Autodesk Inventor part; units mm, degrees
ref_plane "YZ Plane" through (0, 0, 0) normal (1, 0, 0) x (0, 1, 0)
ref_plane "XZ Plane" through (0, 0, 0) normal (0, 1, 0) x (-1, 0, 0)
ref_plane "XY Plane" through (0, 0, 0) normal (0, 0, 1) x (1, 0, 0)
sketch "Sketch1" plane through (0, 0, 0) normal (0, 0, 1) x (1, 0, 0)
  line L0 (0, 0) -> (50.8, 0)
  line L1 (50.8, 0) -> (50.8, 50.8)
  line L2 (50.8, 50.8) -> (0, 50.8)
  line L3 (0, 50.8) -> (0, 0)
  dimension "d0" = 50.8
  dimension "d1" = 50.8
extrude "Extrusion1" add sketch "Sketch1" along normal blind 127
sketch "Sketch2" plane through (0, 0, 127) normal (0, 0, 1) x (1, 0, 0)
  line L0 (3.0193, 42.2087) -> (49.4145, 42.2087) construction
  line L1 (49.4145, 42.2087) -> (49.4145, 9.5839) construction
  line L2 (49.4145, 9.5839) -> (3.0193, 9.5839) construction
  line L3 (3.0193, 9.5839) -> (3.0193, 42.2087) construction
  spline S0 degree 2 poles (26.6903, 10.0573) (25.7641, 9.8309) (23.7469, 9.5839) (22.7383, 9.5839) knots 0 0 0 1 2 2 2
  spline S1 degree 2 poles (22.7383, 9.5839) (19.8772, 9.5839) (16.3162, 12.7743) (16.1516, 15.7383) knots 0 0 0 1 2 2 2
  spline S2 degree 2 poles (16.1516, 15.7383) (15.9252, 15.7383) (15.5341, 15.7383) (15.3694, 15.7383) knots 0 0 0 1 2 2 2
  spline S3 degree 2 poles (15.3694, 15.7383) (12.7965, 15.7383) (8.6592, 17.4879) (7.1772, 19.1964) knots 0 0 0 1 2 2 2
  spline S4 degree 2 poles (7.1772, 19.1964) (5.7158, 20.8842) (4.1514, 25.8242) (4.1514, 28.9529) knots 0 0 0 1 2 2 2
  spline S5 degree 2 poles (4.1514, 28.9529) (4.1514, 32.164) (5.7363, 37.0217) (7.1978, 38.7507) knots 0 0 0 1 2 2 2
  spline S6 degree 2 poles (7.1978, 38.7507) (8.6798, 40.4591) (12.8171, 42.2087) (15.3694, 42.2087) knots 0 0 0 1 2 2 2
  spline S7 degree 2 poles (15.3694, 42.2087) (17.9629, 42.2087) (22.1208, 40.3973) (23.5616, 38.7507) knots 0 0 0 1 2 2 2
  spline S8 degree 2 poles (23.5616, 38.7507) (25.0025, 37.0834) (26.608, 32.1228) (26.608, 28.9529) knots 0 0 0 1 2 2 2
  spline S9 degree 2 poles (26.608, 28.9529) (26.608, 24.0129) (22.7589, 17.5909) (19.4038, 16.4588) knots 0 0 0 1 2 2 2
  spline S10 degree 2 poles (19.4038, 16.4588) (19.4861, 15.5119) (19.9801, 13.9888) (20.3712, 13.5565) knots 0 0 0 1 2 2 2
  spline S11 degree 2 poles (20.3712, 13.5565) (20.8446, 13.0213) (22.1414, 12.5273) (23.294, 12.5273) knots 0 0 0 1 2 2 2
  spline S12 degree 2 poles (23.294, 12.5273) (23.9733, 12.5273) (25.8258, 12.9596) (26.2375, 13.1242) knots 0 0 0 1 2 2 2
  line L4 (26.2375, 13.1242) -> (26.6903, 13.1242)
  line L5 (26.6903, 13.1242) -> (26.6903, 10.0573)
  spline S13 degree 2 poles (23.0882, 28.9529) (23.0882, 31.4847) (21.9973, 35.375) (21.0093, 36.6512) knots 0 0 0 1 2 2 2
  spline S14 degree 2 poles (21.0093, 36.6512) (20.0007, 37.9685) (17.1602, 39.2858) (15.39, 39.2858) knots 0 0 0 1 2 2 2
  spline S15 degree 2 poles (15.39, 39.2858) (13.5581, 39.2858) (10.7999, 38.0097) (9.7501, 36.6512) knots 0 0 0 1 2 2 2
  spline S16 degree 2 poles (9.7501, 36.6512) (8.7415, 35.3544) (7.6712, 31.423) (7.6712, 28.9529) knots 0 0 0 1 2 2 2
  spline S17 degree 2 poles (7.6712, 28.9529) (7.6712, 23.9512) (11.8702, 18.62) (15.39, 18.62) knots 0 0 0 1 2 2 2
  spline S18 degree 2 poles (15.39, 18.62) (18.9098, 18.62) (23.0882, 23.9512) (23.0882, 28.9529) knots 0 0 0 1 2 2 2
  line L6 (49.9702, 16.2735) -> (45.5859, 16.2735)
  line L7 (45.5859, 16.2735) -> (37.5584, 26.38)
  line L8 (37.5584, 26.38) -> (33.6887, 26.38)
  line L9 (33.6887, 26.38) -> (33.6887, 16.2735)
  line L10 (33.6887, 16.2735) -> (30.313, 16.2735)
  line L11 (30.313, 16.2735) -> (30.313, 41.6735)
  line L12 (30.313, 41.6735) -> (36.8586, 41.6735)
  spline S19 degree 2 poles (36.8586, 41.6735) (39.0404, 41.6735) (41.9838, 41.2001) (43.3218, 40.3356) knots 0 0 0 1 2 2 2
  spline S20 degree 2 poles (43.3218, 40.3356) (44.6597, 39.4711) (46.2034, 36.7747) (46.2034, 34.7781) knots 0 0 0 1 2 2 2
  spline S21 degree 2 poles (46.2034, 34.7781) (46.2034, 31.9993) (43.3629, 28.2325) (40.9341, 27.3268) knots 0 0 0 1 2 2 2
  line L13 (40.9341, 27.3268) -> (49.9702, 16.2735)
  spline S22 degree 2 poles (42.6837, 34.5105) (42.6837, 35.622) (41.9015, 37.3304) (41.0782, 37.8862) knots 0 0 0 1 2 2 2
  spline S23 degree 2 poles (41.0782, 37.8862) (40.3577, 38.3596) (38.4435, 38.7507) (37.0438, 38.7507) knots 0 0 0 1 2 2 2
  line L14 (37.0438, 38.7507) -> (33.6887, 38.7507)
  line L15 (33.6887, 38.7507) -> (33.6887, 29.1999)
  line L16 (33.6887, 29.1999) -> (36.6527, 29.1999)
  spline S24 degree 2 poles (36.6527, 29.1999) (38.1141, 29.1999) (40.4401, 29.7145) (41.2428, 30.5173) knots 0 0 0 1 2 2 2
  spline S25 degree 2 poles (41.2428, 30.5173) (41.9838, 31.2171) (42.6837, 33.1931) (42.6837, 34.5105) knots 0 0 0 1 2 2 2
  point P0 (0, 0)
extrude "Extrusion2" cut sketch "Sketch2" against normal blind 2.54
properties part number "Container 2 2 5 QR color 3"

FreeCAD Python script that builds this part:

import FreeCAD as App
import Part
import Sketcher
from FreeCAD import Vector
Q = App.Units.Quantity


def add_polygon(sketch, points):
    """Adds a closed chain of lines whose ends are joined by coincident constraints."""
    first, n = sketch.GeometryCount, len(points)
    for a, b in zip(points, points[1:] + points[:1]):
        sketch.addGeometry(Part.LineSegment(App.Vector(*a, 0), App.Vector(*b, 0)), False)
    for i in range(n):
        sketch.addConstraint(Sketcher.Constraint("Coincident", first + i, 2, first + (i + 1) % n, 1))

doc = App.newDocument("Part")
body = doc.addObject("PartDesign::Body", "Body")

# Sketch on XY plane
sketch1 = body.newObject("Sketcher::SketchObject", "Sketch")
sketch1.AttachmentSupport = (doc.getObject("XY_Plane"), [""])
sketch1.MapMode = "FlatFace"
add_polygon(sketch1, [(0, 51), (0, 0), (51, 0), (51, 51)])  # lines 0-3
sketch1.addConstraint([
    Sketcher.Constraint("Vertical", 0),
    Sketcher.Constraint("Horizontal", 1),
    Sketcher.Constraint("Vertical", 2),
    Sketcher.Constraint("Horizontal", 3),
    Sketcher.Constraint("Coincident", 0, 2, -1, 1),
    Sketcher.Constraint("Equal", 3, 0),
    Sketcher.Constraint("DistanceX", 1, 1, 1, 2, Q("2 in")),
])
pad1 = body.newObject("PartDesign::Pad", "Pad")
pad1.Profile = sketch1
pad1.Length = Q("5 in")

# Sketch on XY plane
sketch2 = body.newObject("Sketcher::SketchObject", "Sketch001")
sketch2.AttachmentSupport = (doc.getObject("XY_Plane"), [""])
sketch2.MapMode = "FlatFace"
sketch2.AttachmentOffset = App.Placement(Vector(0, 0, 5 * 25.4), App.Rotation())
sketch2.addGeometry([
    Part.BSplineCurve([Vector(26.6903, 10.0573, 0), Vector(25.7641, 9.8309, 0), Vector(23.7469, 9.5839, 0), Vector(22.7383, 9.5839, 0)], [3, 1, 3], [0, 1, 2], False, 2, [1, 1, 1, 1], False),  # 0
    Part.LineSegment(Vector(26.6903, 10.0573, 0), Vector(26.6903, 13.1242, 0)),  # 1
    Part.LineSegment(Vector(26.6903, 13.1242, 0), Vector(26.2375, 13.1242, 0)),  # 2
    Part.BSplineCurve([Vector(23.294, 12.5273, 0), Vector(23.9733, 12.5273, 0), Vector(25.8258, 12.9596, 0), Vector(26.2375, 13.1242, 0)], [3, 1, 3], [0, 1, 2], False, 2, [1, 1, 1, 1], False),  # 3
    Part.BSplineCurve([Vector(20.3712, 13.5565, 0), Vector(20.8446, 13.0213, 0), Vector(22.1414, 12.5273, 0), Vector(23.294, 12.5273, 0)], [3, 1, 3], [0, 1, 2], False, 2, [1, 1, 1, 1], False),  # 4
    Part.BSplineCurve([Vector(19.4038, 16.4588, 0), Vector(19.4861, 15.5119, 0), Vector(19.9801, 13.9888, 0), Vector(20.3712, 13.5565, 0)], [3, 1, 3], [0, 1, 2], False, 2, [1, 1, 1, 1], False),  # 5
    Part.BSplineCurve([Vector(26.608, 28.9529, 0), Vector(26.608, 24.0129, 0), Vector(22.7589, 17.5909, 0), Vector(19.4038, 16.4588, 0)], [3, 1, 3], [0, 1, 2], False, 2, [1, 1, 1, 1], False),  # 6
    Part.BSplineCurve([Vector(23.5616, 38.7507, 0), Vector(25.0025, 37.0834, 0), Vector(26.608, 32.1228, 0), Vector(26.608, 28.9529, 0)], [3, 1, 3], [0, 1, 2], False, 2, [1, 1, 1, 1], False),  # 7
    Part.BSplineCurve([Vector(15.3694, 42.2087, 0), Vector(17.9629, 42.2087, 0), Vector(22.1208, 40.3973, 0), Vector(23.5616, 38.7507, 0)], [3, 1, 3], [0, 1, 2], False, 2, [1, 1, 1, 1], False),  # 8
    Part.BSplineCurve([Vector(7.1978, 38.7507, 0), Vector(8.6798, 40.4591, 0), Vector(12.8171, 42.2087, 0), Vector(15.3694, 42.2087, 0)], [3, 1, 3], [0, 1, 2], False, 2, [1, 1, 1, 1], False),  # 9
    Part.BSplineCurve([Vector(4.1514, 28.9529, 0), Vector(4.1514, 32.164, 0), Vector(5.7363, 37.0217, 0), Vector(7.1978, 38.7507, 0)], [3, 1, 3], [0, 1, 2], False, 2, [1, 1, 1, 1], False),  # 10
    Part.BSplineCurve([Vector(7.1772, 19.1964, 0), Vector(5.7158, 20.8842, 0), Vector(4.1514, 25.8242, 0), Vector(4.1514, 28.9529, 0)], [3, 1, 3], [0, 1, 2], False, 2, [1, 1, 1, 1], False),  # 11
    Part.BSplineCurve([Vector(15.3694, 15.7383, 0), Vector(12.7965, 15.7383, 0), Vector(8.6592, 17.4879, 0), Vector(7.1772, 19.1964, 0)], [3, 1, 3], [0, 1, 2], False, 2, [1, 1, 1, 1], False),  # 12
    Part.BSplineCurve([Vector(16.1516, 15.7383, 0), Vector(15.9252, 15.7383, 0), Vector(15.5341, 15.7383, 0), Vector(15.3694, 15.7383, 0)], [3, 1, 3], [0, 1, 2], False, 2, [1, 1, 1, 1], False),  # 13
    Part.BSplineCurve([Vector(22.7383, 9.5839, 0), Vector(19.8772, 9.5839, 0), Vector(16.3162, 12.7743, 0), Vector(16.1516, 15.7383, 0)], [3, 1, 3], [0, 1, 2], False, 2, [1, 1, 1, 1], False),  # 14
    Part.BSplineCurve([Vector(23.0882, 28.9529, 0), Vector(23.0882, 31.4847, 0), Vector(21.9973, 35.375, 0), Vector(21.0093, 36.6512, 0)], [3, 1, 3], [0, 1, 2], False, 2, [1, 1, 1, 1], False),  # 15
    Part.BSplineCurve([Vector(15.39, 18.62, 0), Vector(18.9098, 18.62, 0), Vector(23.0882, 23.9512, 0), Vector(23.0882, 28.9529, 0)], [3, 1, 3], [0, 1, 2], False, 2, [1, 1, 1, 1], False),  # 16
    Part.BSplineCurve([Vector(7.6712, 28.9529, 0), Vector(7.6712, 23.9512, 0), Vector(11.8702, 18.62, 0), Vector(15.39, 18.62, 0)], [3, 1, 3], [0, 1, 2], False, 2, [1, 1, 1, 1], False),  # 17
    Part.BSplineCurve([Vector(9.7501, 36.6512, 0), Vector(8.7415, 35.3544, 0), Vector(7.6712, 31.423, 0), Vector(7.6712, 28.9529, 0)], [3, 1, 3], [0, 1, 2], False, 2, [1, 1, 1, 1], False),  # 18
    Part.BSplineCurve([Vector(15.39, 39.2858, 0), Vector(13.5581, 39.2858, 0), Vector(10.7999, 38.0097, 0), Vector(9.7501, 36.6512, 0)], [3, 1, 3], [0, 1, 2], False, 2, [1, 1, 1, 1], False),  # 19
    Part.BSplineCurve([Vector(21.0093, 36.6512, 0), Vector(20.0007, 37.9685, 0), Vector(17.1602, 39.2858, 0), Vector(15.39, 39.2858, 0)], [3, 1, 3], [0, 1, 2], False, 2, [1, 1, 1, 1], False),  # 20
    Part.LineSegment(Vector(45.5859, 16.2735, 0), Vector(49.9702, 16.2735, 0)),  # 21
    Part.LineSegment(Vector(49.9702, 16.2735, 0), Vector(40.9341, 27.3268, 0)),  # 22
    Part.BSplineCurve([Vector(46.2034, 34.7781, 0), Vector(46.2034, 31.9993, 0), Vector(43.3629, 28.2325, 0), Vector(40.9341, 27.3268, 0)], [3, 1, 3], [0, 1, 2], False, 2, [1, 1, 1, 1], False),  # 23
    Part.BSplineCurve([Vector(43.3218, 40.3356, 0), Vector(44.6597, 39.4711, 0), Vector(46.2034, 36.7747, 0), Vector(46.2034, 34.7781, 0)], [3, 1, 3], [0, 1, 2], False, 2, [1, 1, 1, 1], False),  # 24
    Part.BSplineCurve([Vector(36.8586, 41.6735, 0), Vector(39.0404, 41.6735, 0), Vector(41.9838, 41.2001, 0), Vector(43.3218, 40.3356, 0)], [3, 1, 3], [0, 1, 2], False, 2, [1, 1, 1, 1], False),  # 25
    Part.LineSegment(Vector(36.8586, 41.6735, 0), Vector(30.313, 41.6735, 0)),  # 26
    Part.LineSegment(Vector(30.313, 41.6735, 0), Vector(30.313, 16.2735, 0)),  # 27
    Part.LineSegment(Vector(30.313, 16.2735, 0), Vector(33.6887, 16.2735, 0)),  # 28
    Part.LineSegment(Vector(33.6887, 16.2735, 0), Vector(33.6887, 26.38, 0)),  # 29
    Part.LineSegment(Vector(33.6887, 26.38, 0), Vector(37.5584, 26.38, 0)),  # 30
    Part.LineSegment(Vector(37.5584, 26.38, 0), Vector(45.5859, 16.2735, 0)),  # 31
    Part.BSplineCurve([Vector(42.6837, 34.5105, 0), Vector(42.6837, 35.622, 0), Vector(41.9015, 37.3304, 0), Vector(41.0782, 37.8862, 0)], [3, 1, 3], [0, 1, 2], False, 2, [1, 1, 1, 1], False),  # 32
    Part.BSplineCurve([Vector(41.2428, 30.5173, 0), Vector(41.9838, 31.2171, 0), Vector(42.6837, 33.1931, 0), Vector(42.6837, 34.5105, 0)], [3, 1, 3], [0, 1, 2], False, 2, [1, 1, 1, 1], False),  # 33
    Part.BSplineCurve([Vector(36.6527, 29.1999, 0), Vector(38.1141, 29.1999, 0), Vector(40.4401, 29.7145, 0), Vector(41.2428, 30.5173, 0)], [3, 1, 3], [0, 1, 2], False, 2, [1, 1, 1, 1], False),  # 34
    Part.LineSegment(Vector(36.6527, 29.1999, 0), Vector(33.6887, 29.1999, 0)),  # 35
    Part.LineSegment(Vector(33.6887, 29.1999, 0), Vector(33.6887, 38.7507, 0)),  # 36
    Part.LineSegment(Vector(33.6887, 38.7507, 0), Vector(37.0438, 38.7507, 0)),  # 37
    Part.BSplineCurve([Vector(41.0782, 37.8862, 0), Vector(40.3577, 38.3596, 0), Vector(38.4435, 38.7507, 0), Vector(37.0438, 38.7507, 0)], [3, 1, 3], [0, 1, 2], False, 2, [1, 1, 1, 1], False),  # 38
], False)
sketch2.addConstraint([
    Sketcher.Constraint("Block", 0),
    Sketcher.Constraint("Block", 3),
    Sketcher.Constraint("Block", 4),
    Sketcher.Constraint("Block", 5),
    Sketcher.Constraint("Block", 6),
    Sketcher.Constraint("Block", 7),
    Sketcher.Constraint("Block", 8),
    Sketcher.Constraint("Block", 9),
    Sketcher.Constraint("Block", 10),
    Sketcher.Constraint("Block", 11),
    Sketcher.Constraint("Block", 12),
    Sketcher.Constraint("Block", 13),
    Sketcher.Constraint("Block", 14),
    Sketcher.Constraint("Block", 15),
    Sketcher.Constraint("Block", 16),
    Sketcher.Constraint("Block", 17),
    Sketcher.Constraint("Block", 18),
    Sketcher.Constraint("Block", 19),
    Sketcher.Constraint("Block", 20),
    Sketcher.Constraint("Block", 23),
    Sketcher.Constraint("Block", 24),
    Sketcher.Constraint("Block", 25),
    Sketcher.Constraint("Block", 32),
    Sketcher.Constraint("Block", 33),
    Sketcher.Constraint("Block", 34),
    Sketcher.Constraint("Block", 38),
    Sketcher.Constraint("Coincident", 0, 1, 1, 1),
    Sketcher.Constraint("Coincident", 1, 2, 2, 1),
    Sketcher.Constraint("Coincident", 2, 2, 3, 2),
    Sketcher.Constraint("Coincident", 21, 2, 22, 1),
    Sketcher.Constraint("Coincident", 22, 2, 23, 2),
    Sketcher.Constraint("Coincident", 25, 1, 26, 1),
    Sketcher.Constraint("Coincident", 26, 2, 27, 1),
    Sketcher.Constraint("Coincident", 27, 2, 28, 1),
    Sketcher.Constraint("Coincident", 28, 2, 29, 1),
    Sketcher.Constraint("Coincident", 29, 2, 30, 1),
    Sketcher.Constraint("Coincident", 30, 2, 31, 1),
    Sketcher.Constraint("Coincident", 31, 2, 21, 1),
    Sketcher.Constraint("Coincident", 34, 1, 35, 1),
    Sketcher.Constraint("Coincident", 35, 2, 36, 1),
    Sketcher.Constraint("Coincident", 36, 2, 37, 1),
    Sketcher.Constraint("Coincident", 37, 2, 38, 2),
    Sketcher.Constraint("Vertical", 1),
    Sketcher.Constraint("Horizontal", 2),
    Sketcher.Constraint("Horizontal", 21),
    Sketcher.Constraint("Horizontal", 26),
    Sketcher.Constraint("Vertical", 27),
    Sketcher.Constraint("Horizontal", 28),
    Sketcher.Constraint("Vertical", 29),
    Sketcher.Constraint("Horizontal", 30),
    Sketcher.Constraint("Horizontal", 35),
    Sketcher.Constraint("Vertical", 36),
    Sketcher.Constraint("Horizontal", 37),
    Sketcher.Constraint("Horizontal", 21, 2, 27, 2),
    Sketcher.Constraint("Vertical", 29, 2, 35, 2),
    Sketcher.Constraint("DistanceY", 27, 2, 27, 1, Q("1 in")),
    Sketcher.Constraint("Angle", 31, Q("-51.5402 deg")),
    Sketcher.Constraint("DistanceX", 21, 1, 21, 2, Q("0.1726 in")),
    Sketcher.Constraint("DistanceX", 26, 2, 26, 1, Q("0.2577 in")),
    Sketcher.Constraint("DistanceX", 28, 1, 28, 2, Q("0.1329 in")),
    Sketcher.Constraint("DistanceY", 29, 1, 29, 2, Q("0.3979 in")),
    Sketcher.Constraint("DistanceX", 28, 2, 21, 2, Q("0.641 in")),
])
pocket1 = body.newObject("PartDesign::Pocket", "Pocket")
pocket1.Profile = sketch2
pocket1.Length = Q("0.1 in")

doc.recompute()
